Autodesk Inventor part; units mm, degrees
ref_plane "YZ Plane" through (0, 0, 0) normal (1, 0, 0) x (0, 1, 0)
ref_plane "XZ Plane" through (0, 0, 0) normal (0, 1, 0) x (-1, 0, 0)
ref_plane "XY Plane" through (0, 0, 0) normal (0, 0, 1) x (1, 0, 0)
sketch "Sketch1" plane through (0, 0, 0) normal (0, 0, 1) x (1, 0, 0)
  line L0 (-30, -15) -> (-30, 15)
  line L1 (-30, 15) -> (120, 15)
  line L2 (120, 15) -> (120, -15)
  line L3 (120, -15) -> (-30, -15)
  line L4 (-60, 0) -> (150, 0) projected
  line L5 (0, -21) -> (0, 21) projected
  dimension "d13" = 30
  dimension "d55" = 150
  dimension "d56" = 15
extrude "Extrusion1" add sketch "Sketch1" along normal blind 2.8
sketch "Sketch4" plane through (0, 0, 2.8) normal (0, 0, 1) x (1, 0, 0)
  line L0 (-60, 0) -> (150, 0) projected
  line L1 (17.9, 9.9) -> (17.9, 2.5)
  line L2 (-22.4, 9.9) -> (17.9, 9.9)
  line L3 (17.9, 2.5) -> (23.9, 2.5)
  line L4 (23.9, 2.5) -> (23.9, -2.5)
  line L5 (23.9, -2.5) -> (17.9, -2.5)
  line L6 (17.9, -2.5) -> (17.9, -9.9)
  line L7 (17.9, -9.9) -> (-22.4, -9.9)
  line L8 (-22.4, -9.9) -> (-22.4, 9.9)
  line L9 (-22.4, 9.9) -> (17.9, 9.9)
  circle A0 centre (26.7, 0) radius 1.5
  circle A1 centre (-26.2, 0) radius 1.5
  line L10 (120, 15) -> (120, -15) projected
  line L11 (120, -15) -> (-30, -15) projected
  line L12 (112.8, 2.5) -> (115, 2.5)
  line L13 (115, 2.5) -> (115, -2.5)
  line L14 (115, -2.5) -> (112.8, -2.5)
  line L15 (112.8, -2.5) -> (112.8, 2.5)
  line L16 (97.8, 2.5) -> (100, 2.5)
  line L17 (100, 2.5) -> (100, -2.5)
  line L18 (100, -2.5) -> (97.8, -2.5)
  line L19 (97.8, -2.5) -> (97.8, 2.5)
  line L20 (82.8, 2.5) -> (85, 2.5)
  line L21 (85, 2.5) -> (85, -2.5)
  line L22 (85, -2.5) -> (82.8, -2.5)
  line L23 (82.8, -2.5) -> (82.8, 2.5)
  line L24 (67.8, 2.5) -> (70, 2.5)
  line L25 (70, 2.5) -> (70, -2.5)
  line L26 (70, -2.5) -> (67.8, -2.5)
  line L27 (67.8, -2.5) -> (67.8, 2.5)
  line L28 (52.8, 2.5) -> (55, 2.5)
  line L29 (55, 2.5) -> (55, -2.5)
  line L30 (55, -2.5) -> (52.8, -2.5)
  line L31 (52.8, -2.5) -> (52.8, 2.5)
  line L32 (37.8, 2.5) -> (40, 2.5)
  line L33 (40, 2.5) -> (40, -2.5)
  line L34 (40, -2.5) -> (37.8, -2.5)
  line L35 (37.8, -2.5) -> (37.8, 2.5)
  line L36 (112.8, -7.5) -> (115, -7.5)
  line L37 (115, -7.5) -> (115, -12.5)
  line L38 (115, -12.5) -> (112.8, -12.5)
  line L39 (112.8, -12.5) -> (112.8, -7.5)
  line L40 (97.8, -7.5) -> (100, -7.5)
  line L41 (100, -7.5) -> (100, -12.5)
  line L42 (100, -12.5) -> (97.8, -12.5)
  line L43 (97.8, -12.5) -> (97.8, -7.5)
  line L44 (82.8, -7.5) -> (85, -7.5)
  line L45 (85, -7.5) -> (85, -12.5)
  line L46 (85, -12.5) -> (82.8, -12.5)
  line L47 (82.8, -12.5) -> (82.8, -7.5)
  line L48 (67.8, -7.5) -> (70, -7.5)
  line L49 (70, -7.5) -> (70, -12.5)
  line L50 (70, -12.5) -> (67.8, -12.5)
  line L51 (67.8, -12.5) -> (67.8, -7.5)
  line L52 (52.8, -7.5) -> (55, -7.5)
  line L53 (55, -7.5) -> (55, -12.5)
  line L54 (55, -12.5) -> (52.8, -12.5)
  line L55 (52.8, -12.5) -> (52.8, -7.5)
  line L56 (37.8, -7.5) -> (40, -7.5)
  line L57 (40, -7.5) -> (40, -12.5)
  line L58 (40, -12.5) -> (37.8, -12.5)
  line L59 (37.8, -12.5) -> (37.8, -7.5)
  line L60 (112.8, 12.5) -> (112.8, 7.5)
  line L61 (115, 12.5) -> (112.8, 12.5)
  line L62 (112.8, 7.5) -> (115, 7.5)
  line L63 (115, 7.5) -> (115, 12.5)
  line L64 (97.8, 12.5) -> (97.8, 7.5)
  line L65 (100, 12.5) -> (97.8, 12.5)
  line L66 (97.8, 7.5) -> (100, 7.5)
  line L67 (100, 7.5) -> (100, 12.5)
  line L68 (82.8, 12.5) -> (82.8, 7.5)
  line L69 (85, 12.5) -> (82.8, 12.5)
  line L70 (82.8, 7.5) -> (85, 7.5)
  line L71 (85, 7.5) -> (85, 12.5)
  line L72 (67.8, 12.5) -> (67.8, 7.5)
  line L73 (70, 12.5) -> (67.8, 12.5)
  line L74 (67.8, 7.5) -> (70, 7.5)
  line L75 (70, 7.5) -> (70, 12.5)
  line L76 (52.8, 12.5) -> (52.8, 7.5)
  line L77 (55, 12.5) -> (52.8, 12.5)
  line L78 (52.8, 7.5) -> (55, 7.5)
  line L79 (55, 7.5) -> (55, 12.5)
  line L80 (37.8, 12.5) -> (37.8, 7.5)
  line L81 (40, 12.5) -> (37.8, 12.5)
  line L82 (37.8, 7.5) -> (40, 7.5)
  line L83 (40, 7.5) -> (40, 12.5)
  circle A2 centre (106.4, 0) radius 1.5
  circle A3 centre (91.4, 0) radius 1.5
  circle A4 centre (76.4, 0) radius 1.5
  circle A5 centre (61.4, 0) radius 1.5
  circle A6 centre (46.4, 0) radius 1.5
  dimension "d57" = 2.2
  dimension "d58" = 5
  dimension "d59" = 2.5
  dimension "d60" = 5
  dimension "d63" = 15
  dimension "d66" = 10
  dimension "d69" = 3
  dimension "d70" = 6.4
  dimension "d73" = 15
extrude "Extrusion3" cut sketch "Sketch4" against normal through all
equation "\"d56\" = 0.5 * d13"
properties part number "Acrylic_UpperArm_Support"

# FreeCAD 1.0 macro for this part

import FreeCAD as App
import Part
import Sketcher
from FreeCAD import Vector


def add_polygon(sketch, points):
    """Adds a closed chain of lines whose ends are joined by coincident constraints."""
    first, n = sketch.GeometryCount, len(points)
    for a, b in zip(points, points[1:] + points[:1]):
        sketch.addGeometry(Part.LineSegment(App.Vector(*a, 0), App.Vector(*b, 0)), False)
    for i in range(n):
        sketch.addConstraint(Sketcher.Constraint("Coincident", first + i, 2, first + (i + 1) % n, 1))

doc = App.newDocument("Part")
params = doc.addObject("Spreadsheet::Sheet", "Params")
for row, (alias, value) in enumerate([
    ("sketch1_width", "150 mm"),
    ("sketch1_height", "30 mm"),
    ("pad1_length", "2.8 mm"),
    ("sketch2_diameter", "3 mm"),
    ("sketch2_height", "5 mm"),
    ("sketch2_width", "2.2 mm"),
    ("sketch2_width2", "6 mm"),
    ("sketch2_width3", "40.3 mm"),
], start=1):
    params.set(f"A{row}", alias)
    params.set(f"B{row}", "=" + value)
    params.setAlias(f"B{row}", alias)

body = doc.addObject("PartDesign::Body", "Body")

# Sketch on XY plane
sketch1 = body.newObject("Sketcher::SketchObject", "Sketch")
sketch1.AttachmentSupport = (doc.getObject("XY_Plane"), [""])
sketch1.MapMode = "FlatFace"
add_polygon(sketch1, [(-30, -15), (120, -15), (120, 15), (-30, 15)])  # lines 0-3
sketch1.addConstraint([
    Sketcher.Constraint("Horizontal", 0),
    Sketcher.Constraint("Vertical", 1),
    Sketcher.Constraint("Horizontal", 2),
    Sketcher.Constraint("Vertical", 3),
    Sketcher.Constraint("DistanceX", 0, 1, 0, 2, 150.0),
    Sketcher.Constraint("DistanceY", 1, 1, 1, 2, 30.0),
    Sketcher.Constraint("DistanceY", 0, 2, -1, 1, 15.0),
    Sketcher.Constraint("DistanceX", 2, 2, -1, 1, 30.0),
])
sketch1.setExpression("Constraints[8]", "Params.sketch1_width")
sketch1.setExpression("Constraints[9]", "Params.sketch1_height")
pad1 = body.newObject("PartDesign::Pad", "Pad")
pad1.Profile = sketch1
pad1.setExpression("Length", "Params.pad1_length")

# Sketch on XY plane
sketch2 = body.newObject("Sketcher::SketchObject", "Sketch001")
sketch2.AttachmentSupport = (doc.getObject("XY_Plane"), [""])
sketch2.MapMode = "FlatFace"
sketch2.AttachmentOffset = App.Placement(Vector(0, 0, 2.8), App.Rotation())
sketch2.addGeometry(Part.Circle(Vector(-26.2, 0, 0), Vector(0, 0, 1), 1.5), False)  # 0
add_polygon(sketch2, [(112.8, 2.5), (112.8, -2.5), (115, -2.5), (115, 2.5)])  # lines 1-4
sketch2.addGeometry(Part.Circle(Vector(106.4, 0, 0), Vector(0, 0, 1), 1.5), False)  # 5
add_polygon(sketch2, [(97.8, 2.5), (97.8, -2.5), (100, -2.5), (100, 2.5)])  # lines 6-9
sketch2.addGeometry(Part.Circle(Vector(91.4, 0, 0), Vector(0, 0, 1), 1.5), False)  # 10
add_polygon(sketch2, [(82.8, 2.5), (82.8, -2.5), (85, -2.5), (85, 2.5)])  # lines 11-14
sketch2.addGeometry(Part.Circle(Vector(76.4, 0, 0), Vector(0, 0, 1), 1.5), False)  # 15
add_polygon(sketch2, [(67.8, 2.5), (67.8, -2.5), (70, -2.5), (70, 2.5)])  # lines 16-19
sketch2.addGeometry(Part.Circle(Vector(61.4, 0, 0), Vector(0, 0, 1), 1.5), False)  # 20
add_polygon(sketch2, [(52.8, 2.5), (52.8, -2.5), (55, -2.5), (55, 2.5)])  # lines 21-24
sketch2.addGeometry(Part.Circle(Vector(46.4, 0, 0), Vector(0, 0, 1), 1.5), False)  # 25
add_polygon(sketch2, [(37.8, 2.5), (37.8, -2.5), (40, -2.5), (40, 2.5)])  # lines 26-29
sketch2.addGeometry(Part.Circle(Vector(26.7, 0, 0), Vector(0, 0, 1), 1.5), False)  # 30
add_polygon(sketch2, [(-22.4, 9.9), (-22.4, -9.9), (17.9, -9.9), (17.9, -2.5), (23.9, -2.5), (23.9, 2.5), (17.9, 2.5), (17.9, 9.9)])  # lines 31-38
add_polygon(sketch2, [(115, -7.5), (112.8, -7.5), (112.8, -12.5), (115, -12.5)])  # lines 39-42
add_polygon(sketch2, [(100, -7.5), (97.8, -7.5), (97.8, -12.5), (100, -12.5)])  # lines 43-46
add_polygon(sketch2, [(85, -7.5), (82.8, -7.5), (82.8, -12.5), (85, -12.5)])  # lines 47-50
add_polygon(sketch2, [(70, -7.5), (67.8, -7.5), (67.8, -12.5), (70, -12.5)])  # lines 51-54
add_polygon(sketch2, [(55, -7.5), (52.8, -7.5), (52.8, -12.5), (55, -12.5)])  # lines 55-58
add_polygon(sketch2, [(40, -7.5), (37.8, -7.5), (37.8, -12.5), (40, -12.5)])  # lines 59-62
add_polygon(sketch2, [(115, 12.5), (112.8, 12.5), (112.8, 7.5), (115, 7.5)])  # lines 63-66
add_polygon(sketch2, [(100, 12.5), (97.8, 12.5), (97.8, 7.5), (100, 7.5)])  # lines 67-70
add_polygon(sketch2, [(85, 12.5), (82.8, 12.5), (82.8, 7.5), (85, 7.5)])  # lines 71-74
add_polygon(sketch2, [(70, 12.5), (67.8, 12.5), (67.8, 7.5), (70, 7.5)])  # lines 75-78
add_polygon(sketch2, [(55, 12.5), (52.8, 12.5), (52.8, 7.5), (55, 7.5)])  # lines 79-82
add_polygon(sketch2, [(40, 12.5), (37.8, 12.5), (37.8, 7.5), (40, 7.5)])  # lines 83-86
sketch2.addConstraint([
    Sketcher.Constraint("Vertical", 1),
    Sketcher.Constraint("Horizontal", 2),
    Sketcher.Constraint("Vertical", 3),
    Sketcher.Constraint("Horizontal", 4),
    Sketcher.Constraint("Vertical", 6),
    Sketcher.Constraint("Horizontal", 7),
    Sketcher.Constraint("Vertical", 8),
    Sketcher.Constraint("Horizontal", 9),
    Sketcher.Constraint("Vertical", 11),
    Sketcher.Constraint("Horizontal", 12),
    Sketcher.Constraint("Vertical", 13),
    Sketcher.Constraint("Horizontal", 14),
    Sketcher.Constraint("Vertical", 16),
    Sketcher.Constraint("Horizontal", 17),
    Sketcher.Constraint("Vertical", 18),
    Sketcher.Constraint("Horizontal", 19),
    Sketcher.Constraint("Vertical", 21),
    Sketcher.Constraint("Horizontal", 22),
    Sketcher.Constraint("Vertical", 23),
    Sketcher.Constraint("Horizontal", 24),
    Sketcher.Constraint("Vertical", 26),
    Sketcher.Constraint("Horizontal", 27),
    Sketcher.Constraint("Vertical", 28),
    Sketcher.Constraint("Horizontal", 29),
    Sketcher.Constraint("Vertical", 31),
    Sketcher.Constraint("Horizontal", 32),
    Sketcher.Constraint("Vertical", 33),
    Sketcher.Constraint("Horizontal", 34),
    Sketcher.Constraint("Vertical", 35),
    Sketcher.Constraint("Horizontal", 36),
    Sketcher.Constraint("Vertical", 37),
    Sketcher.Constraint("Horizontal", 38),
    Sketcher.Constraint("Horizontal", 39),
    Sketcher.Constraint("Vertical", 40),
    Sketcher.Constraint("Horizontal", 41),
    Sketcher.Constraint("Vertical", 42),
    Sketcher.Constraint("Horizontal", 43),
    Sketcher.Constraint("Vertical", 44),
    Sketcher.Constraint("Horizontal", 45),
    Sketcher.Constraint("Vertical", 46),
    Sketcher.Constraint("Horizontal", 47),
    Sketcher.Constraint("Vertical", 48),
    Sketcher.Constraint("Horizontal", 49),
    Sketcher.Constraint("Vertical", 50),
    Sketcher.Constraint("Horizontal", 51),
    Sketcher.Constraint("Vertical", 52),
    Sketcher.Constraint("Horizontal", 53),
    Sketcher.Constraint("Vertical", 54),
    Sketcher.Constraint("Horizontal", 55),
    Sketcher.Constraint("Vertical", 56),
    Sketcher.Constraint("Horizontal", 57),
    Sketcher.Constraint("Vertical", 58),
    Sketcher.Constraint("Horizontal", 59),
    Sketcher.Constraint("Vertical", 60),
    Sketcher.Constraint("Horizontal", 61),
    Sketcher.Constraint("Vertical", 62),
    Sketcher.Constraint("Horizontal", 63),
    Sketcher.Constraint("Vertical", 64),
    Sketcher.Constraint("Horizontal", 65),
    Sketcher.Constraint("Vertical", 66),
    Sketcher.Constraint("Horizontal", 67),
    Sketcher.Constraint("Vertical", 68),
    Sketcher.Constraint("Horizontal", 69),
    Sketcher.Constraint("Vertical", 70),
    Sketcher.Constraint("Horizontal", 71),
    Sketcher.Constraint("Vertical", 72),
    Sketcher.Constraint("Horizontal", 73),
    Sketcher.Constraint("Vertical", 74),
    Sketcher.Constraint("Horizontal", 75),
    Sketcher.Constraint("Vertical", 76),
    Sketcher.Constraint("Horizontal", 77),
    Sketcher.Constraint("Vertical", 78),
    Sketcher.Constraint("Horizontal", 79),
    Sketcher.Constraint("Vertical", 80),
    Sketcher.Constraint("Horizontal", 81),
    Sketcher.Constraint("Vertical", 82),
    Sketcher.Constraint("Horizontal", 83),
    Sketcher.Constraint("Vertical", 84),
    Sketcher.Constraint("Horizontal", 85),
    Sketcher.Constraint("Vertical", 86),
    Sketcher.Constraint("Equal", 0, 5),
    Sketcher.Constraint("Equal", 5, 10),
    Sketcher.Constraint("Equal", 10, 15),
    Sketcher.Constraint("Equal", 15, 20),
    Sketcher.Constraint("Equal", 20, 25),
    Sketcher.Constraint("Equal", 25, 30),
    Sketcher.Constraint("Symmetric", 33, 2, 36, 2, -1),
    Sketcher.Constraint("Symmetric", 40, 2, 63, 2, -1),
    Sketcher.Constraint("Symmetric", 42, 2, 65, 2, -1),
    Sketcher.Constraint("Symmetric", 44, 2, 67, 2, -1),
    Sketcher.Constraint("Symmetric", 46, 2, 69, 2, -1),
    Sketcher.Constraint("Symmetric", 48, 2, 71, 2, -1),
    Sketcher.Constraint("Symmetric", 50, 2, 73, 2, -1),
    Sketcher.Constraint("Symmetric", 52, 2, 75, 2, -1),
    Sketcher.Constraint("Symmetric", 54, 2, 77, 2, -1),
    Sketcher.Constraint("Symmetric", 56, 2, 79, 2, -1),
    Sketcher.Constraint("Symmetric", 58, 2, 81, 2, -1),
    Sketcher.Constraint("Symmetric", 60, 2, 83, 2, -1),
    Sketcher.Constraint("Symmetric", 62, 2, 85, 2, -1),
    Sketcher.Constraint("PointOnObject", 0, 3, -1),
    Sketcher.Constraint("PointOnObject", 5, 3, -1),
    Sketcher.Constraint("PointOnObject", 10, 3, -1),
    Sketcher.Constraint("PointOnObject", 15, 3, -1),
    Sketcher.Constraint("PointOnObject", 20, 3, -1),
    Sketcher.Constraint("PointOnObject", 25, 3, -1),
    Sketcher.Constraint("PointOnObject", 30, 3, -1),
    Sketcher.Constraint("Horizontal", 2, 2, 6, 2),
    Sketcher.Constraint("Horizontal", 4, 2, 8, 2),
    Sketcher.Constraint("Horizontal", 7, 2, 11, 2),
    Sketcher.Constraint("Horizontal", 9, 2, 13, 2),
    Sketcher.Constraint("Horizontal", 12, 2, 16, 2),
    Sketcher.Constraint("Horizontal", 14, 2, 18, 2),
    Sketcher.Constraint("Horizontal", 17, 2, 21, 2),
    Sketcher.Constraint("Horizontal", 19, 2, 23, 2),
    Sketcher.Constraint("Horizontal", 22, 2, 26, 2),
    Sketcher.Constraint("Horizontal", 24, 2, 28, 2),
    Sketcher.Constraint("Horizontal", 27, 2, 33, 2),
    Sketcher.Constraint("Horizontal", 29, 2, 35, 2),
    Sketcher.Constraint("Horizontal", 42, 2, 43, 2),
    Sketcher.Constraint("Horizontal", 41, 2, 44, 2),
    Sketcher.Constraint("Horizontal", 46, 2, 47, 2),
    Sketcher.Constraint("Horizontal", 45, 2, 48, 2),
    Sketcher.Constraint("Horizontal", 50, 2, 51, 2),
    Sketcher.Constraint("Horizontal", 49, 2, 52, 2),
    Sketcher.Constraint("Horizontal", 54, 2, 55, 2),
    Sketcher.Constraint("Horizontal", 53, 2, 56, 2),
    Sketcher.Constraint("Horizontal", 58, 2, 59, 2),
    Sketcher.Constraint("Horizontal", 57, 2, 60, 2),
    Sketcher.Constraint("Vertical", 4, 2, 39, 2),
    Sketcher.Constraint("Vertical", 3, 2, 41, 2),
    Sketcher.Constraint("Vertical", 9, 2, 43, 2),
    Sketcher.Constraint("Vertical", 8, 2, 45, 2),
    Sketcher.Constraint("Vertical", 14, 2, 47, 2),
    Sketcher.Constraint("Vertical", 13, 2, 49, 2),
    Sketcher.Constraint("Vertical", 19, 2, 51, 2),
    Sketcher.Constraint("Vertical", 18, 2, 53, 2),
    Sketcher.Constraint("Vertical", 24, 2, 55, 2),
    Sketcher.Constraint("Vertical", 23, 2, 57, 2),
    Sketcher.Constraint("Vertical", 29, 2, 59, 2),
    Sketcher.Constraint("Vertical", 28, 2, 61, 2),
    Sketcher.Constraint("Equal", 4, 7),
    Sketcher.Constraint("Equal", 9, 12),
    Sketcher.Constraint("Equal", 14, 17),
    Sketcher.Constraint("Equal", 19, 22),
    Sketcher.Constraint("Equal", 24, 27),
    Sketcher.Constraint("Equal", 33, 37),
    Sketcher.Constraint("Equal", 35, 40),
    Sketcher.Constraint("Diameter", 0, 3.0),
    Sketcher.Constraint("DistanceY", 1, 2, 1, 1, 5.0),
    Sketcher.Constraint("DistanceX", 2, 1, 2, 2, 2.2),
    Sketcher.Constraint("DistanceX", 34, 1, 34, 2, 6.0),
    Sketcher.Constraint("DistanceX", 32, 1, 32, 2, 40.3),
    Sketcher.Constraint("DistanceY", 31, 2, 31, 1, 19.8),
    Sketcher.Constraint("DistanceX", -1, 1, 2, 2, 115.0),
    Sketcher.Constraint("DistanceX", -1, 1, 7, 2, 100.0),
    Sketcher.Constraint("DistanceX", -1, 1, 12, 2, 85.0),
    Sketcher.Constraint("DistanceX", -1, 1, 17, 2, 70.0),
    Sketcher.Constraint("DistanceX", -1, 1, 22, 2, 55.0),
    Sketcher.Constraint("DistanceX", -1, 1, 27, 2, 40.0),
    Sketcher.Constraint("DistanceX", 0, 3, -1, 1, 26.2),
    Sketcher.Constraint("DistanceX", -1, 1, 5, 3, 106.4),
    Sketcher.Constraint("DistanceX", -1, 1, 10, 3, 91.4),
    Sketcher.Constraint("DistanceX", -1, 1, 15, 3, 76.4),
    Sketcher.Constraint("DistanceX", -1, 1, 20, 3, 61.4),
    Sketcher.Constraint("DistanceX", -1, 1, 25, 3, 46.4),
    Sketcher.Constraint("DistanceX", -1, 1, 30, 3, 26.7),
    Sketcher.Constraint("DistanceX", 31, 2, -1, 1, 22.4),
    Sketcher.Constraint("DistanceY", 39, 2, -1, 1, 7.5),
])
sketch2.setExpression("Constraints[227]", "Params.sketch2_diameter")
sketch2.setExpression("Constraints[228]", "Params.sketch2_height")
sketch2.setExpression("Constraints[229]", "Params.sketch2_width")
sketch2.setExpression("Constraints[230]", "Params.sketch2_width2")
sketch2.setExpression("Constraints[231]", "Params.sketch2_width3")
pocket1 = body.newObject("PartDesign::Pocket", "Pocket")
pocket1.Profile = sketch2
pocket1.Type = "ThroughAll"

doc.recompute()
